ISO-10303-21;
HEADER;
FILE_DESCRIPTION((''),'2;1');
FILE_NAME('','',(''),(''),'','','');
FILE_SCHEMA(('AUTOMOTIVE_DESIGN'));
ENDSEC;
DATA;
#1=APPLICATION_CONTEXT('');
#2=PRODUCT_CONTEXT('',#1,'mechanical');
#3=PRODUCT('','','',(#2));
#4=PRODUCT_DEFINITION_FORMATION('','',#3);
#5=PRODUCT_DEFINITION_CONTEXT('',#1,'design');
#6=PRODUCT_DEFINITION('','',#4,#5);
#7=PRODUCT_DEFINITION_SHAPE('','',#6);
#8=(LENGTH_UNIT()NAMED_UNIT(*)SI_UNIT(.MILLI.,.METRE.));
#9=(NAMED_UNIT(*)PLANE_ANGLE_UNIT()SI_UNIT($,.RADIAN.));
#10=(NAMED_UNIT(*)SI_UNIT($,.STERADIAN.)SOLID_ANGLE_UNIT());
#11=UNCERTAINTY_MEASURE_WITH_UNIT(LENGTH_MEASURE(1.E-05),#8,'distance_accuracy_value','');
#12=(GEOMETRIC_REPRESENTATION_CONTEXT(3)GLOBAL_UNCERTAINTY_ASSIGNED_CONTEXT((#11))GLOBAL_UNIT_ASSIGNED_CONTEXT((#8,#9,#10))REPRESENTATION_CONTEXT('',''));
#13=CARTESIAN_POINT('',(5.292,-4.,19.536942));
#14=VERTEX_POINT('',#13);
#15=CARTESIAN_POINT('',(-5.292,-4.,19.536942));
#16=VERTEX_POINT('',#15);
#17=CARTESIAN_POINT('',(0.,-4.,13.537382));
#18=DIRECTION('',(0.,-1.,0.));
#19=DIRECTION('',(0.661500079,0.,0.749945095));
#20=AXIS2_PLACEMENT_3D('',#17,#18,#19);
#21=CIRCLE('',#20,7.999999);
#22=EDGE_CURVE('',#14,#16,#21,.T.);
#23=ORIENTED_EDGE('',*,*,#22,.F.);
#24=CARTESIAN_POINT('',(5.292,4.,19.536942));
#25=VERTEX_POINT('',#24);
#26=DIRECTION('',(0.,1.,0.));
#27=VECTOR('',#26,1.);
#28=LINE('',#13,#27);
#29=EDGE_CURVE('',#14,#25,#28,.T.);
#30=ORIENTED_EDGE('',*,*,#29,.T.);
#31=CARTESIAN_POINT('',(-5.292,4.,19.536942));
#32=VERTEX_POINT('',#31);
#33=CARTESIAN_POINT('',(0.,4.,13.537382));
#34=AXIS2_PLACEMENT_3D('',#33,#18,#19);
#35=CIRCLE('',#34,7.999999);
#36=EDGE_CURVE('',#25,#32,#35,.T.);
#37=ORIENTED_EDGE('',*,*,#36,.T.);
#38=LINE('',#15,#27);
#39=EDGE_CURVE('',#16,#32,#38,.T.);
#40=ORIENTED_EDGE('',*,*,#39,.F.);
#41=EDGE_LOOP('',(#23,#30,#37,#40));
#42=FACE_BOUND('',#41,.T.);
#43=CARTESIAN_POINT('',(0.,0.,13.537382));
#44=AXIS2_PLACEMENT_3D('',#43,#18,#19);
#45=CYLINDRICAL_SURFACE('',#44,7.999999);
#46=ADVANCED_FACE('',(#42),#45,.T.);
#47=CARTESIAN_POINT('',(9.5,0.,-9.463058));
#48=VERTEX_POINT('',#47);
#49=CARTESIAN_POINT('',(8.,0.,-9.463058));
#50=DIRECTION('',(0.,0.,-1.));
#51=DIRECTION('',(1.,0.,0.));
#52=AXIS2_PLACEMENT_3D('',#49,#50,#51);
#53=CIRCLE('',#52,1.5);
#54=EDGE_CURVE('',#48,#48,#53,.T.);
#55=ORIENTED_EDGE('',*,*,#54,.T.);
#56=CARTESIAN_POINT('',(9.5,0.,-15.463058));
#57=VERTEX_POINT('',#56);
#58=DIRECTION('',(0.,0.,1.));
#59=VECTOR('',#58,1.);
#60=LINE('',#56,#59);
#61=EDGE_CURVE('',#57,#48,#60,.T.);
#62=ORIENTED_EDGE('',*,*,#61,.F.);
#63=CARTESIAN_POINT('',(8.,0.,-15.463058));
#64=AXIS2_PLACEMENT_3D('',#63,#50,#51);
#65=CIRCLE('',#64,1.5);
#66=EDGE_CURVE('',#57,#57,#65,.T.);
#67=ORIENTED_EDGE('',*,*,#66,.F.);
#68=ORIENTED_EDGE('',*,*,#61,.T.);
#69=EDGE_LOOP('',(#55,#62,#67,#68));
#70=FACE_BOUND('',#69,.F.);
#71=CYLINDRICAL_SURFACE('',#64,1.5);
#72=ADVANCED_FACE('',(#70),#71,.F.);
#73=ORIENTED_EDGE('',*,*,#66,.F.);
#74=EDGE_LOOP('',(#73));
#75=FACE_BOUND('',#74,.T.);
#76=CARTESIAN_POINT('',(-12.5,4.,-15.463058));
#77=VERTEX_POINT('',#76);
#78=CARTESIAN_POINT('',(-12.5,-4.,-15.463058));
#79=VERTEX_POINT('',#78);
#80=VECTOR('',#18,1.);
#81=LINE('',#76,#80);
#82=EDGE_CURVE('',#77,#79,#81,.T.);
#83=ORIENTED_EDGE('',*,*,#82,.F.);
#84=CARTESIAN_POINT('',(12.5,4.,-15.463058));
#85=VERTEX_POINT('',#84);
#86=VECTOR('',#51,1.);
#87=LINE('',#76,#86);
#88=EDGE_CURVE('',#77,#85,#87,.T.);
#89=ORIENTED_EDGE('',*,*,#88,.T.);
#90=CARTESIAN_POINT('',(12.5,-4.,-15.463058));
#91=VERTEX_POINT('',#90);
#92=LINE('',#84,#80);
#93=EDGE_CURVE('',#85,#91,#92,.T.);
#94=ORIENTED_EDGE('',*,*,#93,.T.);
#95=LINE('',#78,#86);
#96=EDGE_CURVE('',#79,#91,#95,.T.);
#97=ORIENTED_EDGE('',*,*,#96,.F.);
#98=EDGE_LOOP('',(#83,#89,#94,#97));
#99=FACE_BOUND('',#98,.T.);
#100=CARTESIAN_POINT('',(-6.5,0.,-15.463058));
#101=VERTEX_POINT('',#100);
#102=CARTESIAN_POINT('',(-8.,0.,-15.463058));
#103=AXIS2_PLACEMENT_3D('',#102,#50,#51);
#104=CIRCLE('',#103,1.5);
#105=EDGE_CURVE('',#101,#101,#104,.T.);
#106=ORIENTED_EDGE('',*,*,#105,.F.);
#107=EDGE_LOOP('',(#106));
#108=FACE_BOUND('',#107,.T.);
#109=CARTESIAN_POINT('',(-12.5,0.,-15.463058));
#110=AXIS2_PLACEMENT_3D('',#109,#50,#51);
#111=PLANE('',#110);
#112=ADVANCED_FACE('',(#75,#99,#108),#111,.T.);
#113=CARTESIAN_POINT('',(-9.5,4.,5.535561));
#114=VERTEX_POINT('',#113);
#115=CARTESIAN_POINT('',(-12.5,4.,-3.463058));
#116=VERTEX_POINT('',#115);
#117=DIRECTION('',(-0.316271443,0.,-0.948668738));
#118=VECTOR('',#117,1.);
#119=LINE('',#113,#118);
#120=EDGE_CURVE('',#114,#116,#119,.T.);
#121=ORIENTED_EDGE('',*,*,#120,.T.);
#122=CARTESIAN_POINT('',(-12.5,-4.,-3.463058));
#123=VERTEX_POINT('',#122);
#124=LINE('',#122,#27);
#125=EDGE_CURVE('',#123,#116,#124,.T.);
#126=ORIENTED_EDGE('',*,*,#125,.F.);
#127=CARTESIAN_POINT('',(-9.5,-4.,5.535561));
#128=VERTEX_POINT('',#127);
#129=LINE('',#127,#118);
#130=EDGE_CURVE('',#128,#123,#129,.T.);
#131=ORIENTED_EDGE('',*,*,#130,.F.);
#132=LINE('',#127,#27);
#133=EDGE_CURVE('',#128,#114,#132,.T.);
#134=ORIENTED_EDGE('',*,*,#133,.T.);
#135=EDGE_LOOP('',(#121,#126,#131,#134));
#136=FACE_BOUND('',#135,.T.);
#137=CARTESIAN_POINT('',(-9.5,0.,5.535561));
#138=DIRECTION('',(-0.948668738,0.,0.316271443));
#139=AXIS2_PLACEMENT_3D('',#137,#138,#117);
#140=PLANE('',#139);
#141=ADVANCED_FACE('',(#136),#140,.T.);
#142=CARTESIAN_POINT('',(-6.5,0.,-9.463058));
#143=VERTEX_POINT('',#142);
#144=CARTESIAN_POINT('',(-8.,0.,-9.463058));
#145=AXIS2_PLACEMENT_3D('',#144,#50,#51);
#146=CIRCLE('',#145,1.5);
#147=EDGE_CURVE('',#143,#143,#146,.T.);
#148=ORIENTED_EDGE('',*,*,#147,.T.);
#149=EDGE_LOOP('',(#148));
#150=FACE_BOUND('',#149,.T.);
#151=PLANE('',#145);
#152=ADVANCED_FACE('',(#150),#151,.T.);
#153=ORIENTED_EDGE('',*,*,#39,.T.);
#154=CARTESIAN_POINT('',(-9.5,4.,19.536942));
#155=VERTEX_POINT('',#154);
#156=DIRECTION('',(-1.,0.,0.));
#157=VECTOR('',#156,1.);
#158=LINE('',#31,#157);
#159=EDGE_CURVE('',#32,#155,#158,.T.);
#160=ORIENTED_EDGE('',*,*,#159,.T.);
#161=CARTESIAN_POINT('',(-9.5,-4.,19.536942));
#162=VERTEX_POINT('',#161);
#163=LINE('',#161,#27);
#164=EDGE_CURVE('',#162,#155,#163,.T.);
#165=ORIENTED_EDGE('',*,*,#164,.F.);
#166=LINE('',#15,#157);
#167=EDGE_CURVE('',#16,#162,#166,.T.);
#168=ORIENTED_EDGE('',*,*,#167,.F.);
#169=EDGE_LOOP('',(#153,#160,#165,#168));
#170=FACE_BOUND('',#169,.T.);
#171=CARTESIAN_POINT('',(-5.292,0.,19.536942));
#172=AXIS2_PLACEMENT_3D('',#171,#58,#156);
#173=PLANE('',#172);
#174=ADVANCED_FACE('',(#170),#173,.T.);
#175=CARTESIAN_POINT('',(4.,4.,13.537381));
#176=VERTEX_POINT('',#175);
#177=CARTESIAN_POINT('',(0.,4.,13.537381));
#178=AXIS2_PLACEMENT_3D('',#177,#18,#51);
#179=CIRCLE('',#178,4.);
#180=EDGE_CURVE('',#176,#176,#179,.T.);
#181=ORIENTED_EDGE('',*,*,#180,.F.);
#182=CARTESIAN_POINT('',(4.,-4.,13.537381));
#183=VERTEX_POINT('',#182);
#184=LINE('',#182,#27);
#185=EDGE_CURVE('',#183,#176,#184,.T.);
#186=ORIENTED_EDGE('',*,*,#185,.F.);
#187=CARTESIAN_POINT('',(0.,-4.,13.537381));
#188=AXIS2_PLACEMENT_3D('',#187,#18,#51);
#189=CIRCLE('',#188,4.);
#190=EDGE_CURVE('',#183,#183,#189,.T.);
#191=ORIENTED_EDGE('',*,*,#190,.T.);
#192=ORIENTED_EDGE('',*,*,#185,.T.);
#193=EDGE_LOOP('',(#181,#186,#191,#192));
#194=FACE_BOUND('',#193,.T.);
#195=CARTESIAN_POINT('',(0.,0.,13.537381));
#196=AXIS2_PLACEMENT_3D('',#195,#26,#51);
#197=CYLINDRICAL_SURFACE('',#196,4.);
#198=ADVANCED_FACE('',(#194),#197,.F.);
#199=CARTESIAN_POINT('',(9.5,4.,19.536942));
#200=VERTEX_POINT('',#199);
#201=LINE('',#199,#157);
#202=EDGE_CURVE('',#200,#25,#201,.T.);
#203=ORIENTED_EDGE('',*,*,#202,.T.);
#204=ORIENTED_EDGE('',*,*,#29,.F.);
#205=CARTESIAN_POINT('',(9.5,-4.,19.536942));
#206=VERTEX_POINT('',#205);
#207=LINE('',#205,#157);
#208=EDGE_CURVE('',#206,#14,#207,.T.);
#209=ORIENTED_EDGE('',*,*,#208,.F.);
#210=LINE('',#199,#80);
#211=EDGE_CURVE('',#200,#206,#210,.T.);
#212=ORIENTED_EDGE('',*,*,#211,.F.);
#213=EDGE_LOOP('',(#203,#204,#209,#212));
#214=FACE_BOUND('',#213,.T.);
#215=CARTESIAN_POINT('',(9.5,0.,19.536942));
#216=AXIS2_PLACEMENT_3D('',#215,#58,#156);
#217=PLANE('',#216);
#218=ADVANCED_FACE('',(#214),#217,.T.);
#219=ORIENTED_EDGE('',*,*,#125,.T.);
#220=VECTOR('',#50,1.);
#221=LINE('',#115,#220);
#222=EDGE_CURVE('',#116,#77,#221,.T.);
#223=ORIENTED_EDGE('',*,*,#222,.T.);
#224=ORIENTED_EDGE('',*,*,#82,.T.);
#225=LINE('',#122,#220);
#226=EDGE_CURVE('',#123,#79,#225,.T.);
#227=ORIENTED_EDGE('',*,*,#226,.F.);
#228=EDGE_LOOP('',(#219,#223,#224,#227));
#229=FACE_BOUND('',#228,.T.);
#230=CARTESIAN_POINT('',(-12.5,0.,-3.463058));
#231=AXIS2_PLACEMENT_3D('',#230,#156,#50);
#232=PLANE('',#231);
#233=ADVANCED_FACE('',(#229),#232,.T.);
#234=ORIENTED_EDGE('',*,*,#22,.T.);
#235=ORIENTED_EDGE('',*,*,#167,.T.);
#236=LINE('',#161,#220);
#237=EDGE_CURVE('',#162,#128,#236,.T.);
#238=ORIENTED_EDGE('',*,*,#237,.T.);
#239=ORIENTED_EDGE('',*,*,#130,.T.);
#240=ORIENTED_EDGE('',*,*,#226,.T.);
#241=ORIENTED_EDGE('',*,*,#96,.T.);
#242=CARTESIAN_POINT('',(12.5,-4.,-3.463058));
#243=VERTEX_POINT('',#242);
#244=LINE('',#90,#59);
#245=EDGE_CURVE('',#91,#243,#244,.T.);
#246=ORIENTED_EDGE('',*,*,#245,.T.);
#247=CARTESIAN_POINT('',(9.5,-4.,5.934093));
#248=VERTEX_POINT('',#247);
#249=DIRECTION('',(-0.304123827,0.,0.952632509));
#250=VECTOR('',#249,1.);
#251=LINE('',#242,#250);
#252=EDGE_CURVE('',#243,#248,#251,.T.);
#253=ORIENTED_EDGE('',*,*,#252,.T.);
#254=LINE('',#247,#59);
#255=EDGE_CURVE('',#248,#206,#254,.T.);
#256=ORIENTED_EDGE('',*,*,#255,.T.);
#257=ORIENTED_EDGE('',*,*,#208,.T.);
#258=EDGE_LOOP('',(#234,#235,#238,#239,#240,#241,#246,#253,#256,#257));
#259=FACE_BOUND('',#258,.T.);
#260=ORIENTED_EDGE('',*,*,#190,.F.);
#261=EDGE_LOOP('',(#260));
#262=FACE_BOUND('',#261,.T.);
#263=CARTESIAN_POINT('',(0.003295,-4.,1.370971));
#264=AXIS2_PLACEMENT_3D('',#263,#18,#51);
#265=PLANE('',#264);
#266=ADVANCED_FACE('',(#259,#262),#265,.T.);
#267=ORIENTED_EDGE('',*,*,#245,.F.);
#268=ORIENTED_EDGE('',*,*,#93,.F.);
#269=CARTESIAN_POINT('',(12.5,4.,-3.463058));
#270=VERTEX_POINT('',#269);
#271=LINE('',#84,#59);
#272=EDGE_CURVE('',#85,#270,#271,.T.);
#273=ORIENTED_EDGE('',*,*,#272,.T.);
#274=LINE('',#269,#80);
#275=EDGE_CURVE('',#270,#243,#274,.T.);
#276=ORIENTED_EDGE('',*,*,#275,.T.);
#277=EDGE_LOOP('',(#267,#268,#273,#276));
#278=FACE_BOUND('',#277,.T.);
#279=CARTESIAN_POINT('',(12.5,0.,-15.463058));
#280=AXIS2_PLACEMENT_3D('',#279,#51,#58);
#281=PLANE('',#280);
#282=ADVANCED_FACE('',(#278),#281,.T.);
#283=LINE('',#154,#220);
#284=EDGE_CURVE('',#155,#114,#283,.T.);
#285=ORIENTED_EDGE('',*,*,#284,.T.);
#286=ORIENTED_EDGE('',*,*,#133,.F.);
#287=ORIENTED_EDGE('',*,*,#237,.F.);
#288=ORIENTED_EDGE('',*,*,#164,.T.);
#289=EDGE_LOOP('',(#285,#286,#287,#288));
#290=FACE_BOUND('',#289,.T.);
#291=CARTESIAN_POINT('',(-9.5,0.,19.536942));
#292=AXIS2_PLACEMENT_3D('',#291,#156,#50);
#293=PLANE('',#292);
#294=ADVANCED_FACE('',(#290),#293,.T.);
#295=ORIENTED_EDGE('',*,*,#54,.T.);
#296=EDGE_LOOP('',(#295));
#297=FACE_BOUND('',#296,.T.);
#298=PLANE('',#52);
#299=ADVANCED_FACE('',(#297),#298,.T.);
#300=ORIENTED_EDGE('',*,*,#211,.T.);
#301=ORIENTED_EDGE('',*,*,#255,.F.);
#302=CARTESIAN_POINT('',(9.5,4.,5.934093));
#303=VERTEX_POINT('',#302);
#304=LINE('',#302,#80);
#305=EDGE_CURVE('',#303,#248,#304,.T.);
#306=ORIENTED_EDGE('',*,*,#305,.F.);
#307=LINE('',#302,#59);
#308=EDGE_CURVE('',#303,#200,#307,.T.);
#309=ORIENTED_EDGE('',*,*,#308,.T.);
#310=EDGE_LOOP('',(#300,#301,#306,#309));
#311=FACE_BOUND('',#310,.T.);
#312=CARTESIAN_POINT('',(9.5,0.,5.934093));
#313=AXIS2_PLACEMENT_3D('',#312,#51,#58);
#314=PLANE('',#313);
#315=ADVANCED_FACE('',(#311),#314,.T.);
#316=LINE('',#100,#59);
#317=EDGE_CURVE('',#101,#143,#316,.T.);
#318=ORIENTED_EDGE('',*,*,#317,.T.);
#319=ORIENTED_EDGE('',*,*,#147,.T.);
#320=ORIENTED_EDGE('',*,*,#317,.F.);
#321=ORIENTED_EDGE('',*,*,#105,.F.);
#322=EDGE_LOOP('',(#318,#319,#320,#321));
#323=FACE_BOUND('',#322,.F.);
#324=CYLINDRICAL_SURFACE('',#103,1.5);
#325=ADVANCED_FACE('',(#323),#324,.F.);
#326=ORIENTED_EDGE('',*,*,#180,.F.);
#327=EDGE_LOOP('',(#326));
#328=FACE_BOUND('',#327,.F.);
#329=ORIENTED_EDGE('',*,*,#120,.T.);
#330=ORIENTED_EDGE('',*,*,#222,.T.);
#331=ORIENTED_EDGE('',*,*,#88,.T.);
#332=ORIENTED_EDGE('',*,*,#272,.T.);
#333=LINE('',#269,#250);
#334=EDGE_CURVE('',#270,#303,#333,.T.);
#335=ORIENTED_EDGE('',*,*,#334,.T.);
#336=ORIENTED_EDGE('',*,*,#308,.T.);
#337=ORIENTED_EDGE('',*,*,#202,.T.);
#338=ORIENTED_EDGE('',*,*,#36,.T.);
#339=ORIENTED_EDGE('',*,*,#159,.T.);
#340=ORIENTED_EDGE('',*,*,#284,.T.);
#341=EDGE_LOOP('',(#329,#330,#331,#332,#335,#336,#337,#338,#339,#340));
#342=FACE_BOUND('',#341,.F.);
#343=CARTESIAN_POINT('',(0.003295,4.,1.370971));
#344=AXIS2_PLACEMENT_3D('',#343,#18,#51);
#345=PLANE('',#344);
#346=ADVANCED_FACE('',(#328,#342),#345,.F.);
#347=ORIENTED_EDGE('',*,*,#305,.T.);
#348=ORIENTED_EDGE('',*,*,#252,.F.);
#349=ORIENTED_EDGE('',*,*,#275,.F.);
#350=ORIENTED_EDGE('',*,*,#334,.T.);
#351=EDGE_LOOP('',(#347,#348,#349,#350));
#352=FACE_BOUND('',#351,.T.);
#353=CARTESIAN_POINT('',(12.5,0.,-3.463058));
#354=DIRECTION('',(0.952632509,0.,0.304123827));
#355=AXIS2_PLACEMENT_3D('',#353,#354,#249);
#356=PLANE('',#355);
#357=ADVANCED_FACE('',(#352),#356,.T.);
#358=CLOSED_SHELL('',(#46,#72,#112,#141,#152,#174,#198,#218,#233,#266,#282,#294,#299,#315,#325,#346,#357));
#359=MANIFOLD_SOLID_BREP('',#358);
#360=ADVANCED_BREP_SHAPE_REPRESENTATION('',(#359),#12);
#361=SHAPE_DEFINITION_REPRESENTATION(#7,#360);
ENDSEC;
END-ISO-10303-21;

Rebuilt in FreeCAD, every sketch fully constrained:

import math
import FreeCAD as App
import Part
import Sketcher
from FreeCAD import Vector

doc = App.newDocument("Part")
body = doc.addObject("PartDesign::Body", "Body")

sketch1 = body.newObject("Sketcher::SketchObject", "Sketch")
sketch1.AttachmentSupport = (doc.getObject("XZ_Plane"), [""])
sketch1.MapMode = "FlatFace"
sketch1.addGeometry(Part.LineSegment(Vector(-12.5, -3.463058, 0), Vector(-12.5, -15.463058, 0)), False)
sketch1.addGeometry(Part.LineSegment(Vector(-12.5, -15.463058, 0), Vector(12.5, -15.463058, 0)), False)
sketch1.addGeometry(Part.LineSegment(Vector(12.5, -15.463058, 0), Vector(12.5, -3.463058, 0)), False)
sketch1.addGeometry(Part.LineSegment(Vector(12.5, -3.463058, 0), Vector(9.5, 5.934093, 0)), False)
sketch1.addGeometry(Part.LineSegment(Vector(9.5, 5.934093, 0), Vector(9.5, 19.536942, 0)), False)
sketch1.addGeometry(Part.LineSegment(Vector(9.5, 19.536942, 0), Vector(5.292, 19.536942, 0)), False)
sketch1.addGeometry(Part.ArcOfCircle(Part.Circle(Vector(0, 13.537382, 0), Vector(0, 0, 1), 7.999999), math.radians(48.585622), math.radians(131.414378)), False)
sketch1.addGeometry(Part.LineSegment(Vector(-5.292, 19.536942, 0), Vector(-9.5, 19.536942, 0)), False)
sketch1.addGeometry(Part.LineSegment(Vector(-9.5, 19.536942, 0), Vector(-9.5, 5.535561, 0)), False)
sketch1.addGeometry(Part.LineSegment(Vector(-9.5, 5.535561, 0), Vector(-12.5, -3.463058, 0)), False)
sketch1.addGeometry(Part.Circle(Vector(0, 13.537381, 0), Vector(0, 0, 1), 4), False)
sketch1.addConstraint(Sketcher.Constraint("Coincident", 0, 2, 1, 1))
sketch1.addConstraint(Sketcher.Constraint("Coincident", 1, 2, 2, 1))
sketch1.addConstraint(Sketcher.Constraint("Coincident", 2, 2, 3, 1))
sketch1.addConstraint(Sketcher.Constraint("Coincident", 3, 2, 4, 1))
sketch1.addConstraint(Sketcher.Constraint("Coincident", 4, 2, 5, 1))
sketch1.addConstraint(Sketcher.Constraint("Coincident", 5, 2, 6, 1))
sketch1.addConstraint(Sketcher.Constraint("Coincident", 6, 2, 7, 1))
sketch1.addConstraint(Sketcher.Constraint("Coincident", 7, 2, 8, 1))
sketch1.addConstraint(Sketcher.Constraint("Coincident", 8, 2, 9, 1))
sketch1.addConstraint(Sketcher.Constraint("Coincident", 9, 2, 0, 1))
sketch1.addConstraint(Sketcher.Constraint("Vertical", 0))
sketch1.addConstraint(Sketcher.Constraint("Horizontal", 1))
sketch1.addConstraint(Sketcher.Constraint("Vertical", 2))
sketch1.addConstraint(Sketcher.Constraint("Vertical", 4))
sketch1.addConstraint(Sketcher.Constraint("Horizontal", 5))
sketch1.addConstraint(Sketcher.Constraint("Horizontal", 7))
sketch1.addConstraint(Sketcher.Constraint("Vertical", 8))
sketch1.addConstraint(Sketcher.Constraint("Coincident", 10, 3, 6, 3))
sketch1.addConstraint(Sketcher.Constraint("Symmetric", 5, 2, 6, 2, -2))
sketch1.addConstraint(Sketcher.Constraint("Symmetric", 2, 2, 9, 2, -2))
sketch1.addConstraint(Sketcher.Constraint("Equal", 5, 7))
sketch1.addConstraint(Sketcher.Constraint("Diameter", 10, 8.0))
sketch1.addConstraint(Sketcher.Constraint("Radius", 6, 7.999999))
sketch1.addConstraint(Sketcher.Constraint("DistanceX", 1, 1, 1, 2, 25.0))
sketch1.addConstraint(Sketcher.Constraint("DistanceY", 0, 2, 0, 1, 12.0))
sketch1.addConstraint(Sketcher.Constraint("DistanceX", 3, 2, 2, 2, 3.0))
sketch1.addConstraint(Sketcher.Constraint("DistanceY", 2, 2, 4, 2, 23.0))
sketch1.addConstraint(Sketcher.Constraint("DistanceX", 5, 2, 5, 1, 4.208))
sketch1.addConstraint(Sketcher.Constraint("DistanceY", 4, 1, 4, 2, 13.602849))
sketch1.addConstraint(Sketcher.Constraint("DistanceY", 8, 2, 8, 1, 14.001381))
sketch1.addConstraint(Sketcher.Constraint("DistanceY", -1, 1, 6, 3, 13.537382))
pad1 = body.newObject("PartDesign::Pad", "Pad")
pad1.Profile = sketch1
pad1.Length = 8
pad1.Midplane = True

sketch2 = body.newObject("Sketcher::SketchObject", "Sketch001")
sketch2.AttachmentSupport = (doc.getObject("XY_Plane"), [""])
sketch2.MapMode = "FlatFace"
sketch2.AttachmentOffset = App.Placement(Vector(0, 0, -15.463058), App.Rotation())
sketch2.addGeometry(Part.Circle(Vector(-8, 0, 0), Vector(0, 0, 1), 1.5), False)
sketch2.addGeometry(Part.Circle(Vector(8, 0, 0), Vector(0, 0, 1), 1.5), False)
sketch2.addConstraint(Sketcher.Constraint("Equal", 0, 1))
sketch2.addConstraint(Sketcher.Constraint("Symmetric", 0, 3, 1, 3, -1, 1))
sketch2.addConstraint(Sketcher.Constraint("PointOnObject", 0, 3, -1))
sketch2.addConstraint(Sketcher.Constraint("Diameter", 0, 3.0))
sketch2.addConstraint(Sketcher.Constraint("DistanceX", 0, 3, -1, 1, 8.0))
pocket1 = body.newObject("PartDesign::Pocket", "Pocket")
pocket1.Profile = sketch2
pocket1.Length = 6
pocket1.Reversed = True

doc.recompute()
